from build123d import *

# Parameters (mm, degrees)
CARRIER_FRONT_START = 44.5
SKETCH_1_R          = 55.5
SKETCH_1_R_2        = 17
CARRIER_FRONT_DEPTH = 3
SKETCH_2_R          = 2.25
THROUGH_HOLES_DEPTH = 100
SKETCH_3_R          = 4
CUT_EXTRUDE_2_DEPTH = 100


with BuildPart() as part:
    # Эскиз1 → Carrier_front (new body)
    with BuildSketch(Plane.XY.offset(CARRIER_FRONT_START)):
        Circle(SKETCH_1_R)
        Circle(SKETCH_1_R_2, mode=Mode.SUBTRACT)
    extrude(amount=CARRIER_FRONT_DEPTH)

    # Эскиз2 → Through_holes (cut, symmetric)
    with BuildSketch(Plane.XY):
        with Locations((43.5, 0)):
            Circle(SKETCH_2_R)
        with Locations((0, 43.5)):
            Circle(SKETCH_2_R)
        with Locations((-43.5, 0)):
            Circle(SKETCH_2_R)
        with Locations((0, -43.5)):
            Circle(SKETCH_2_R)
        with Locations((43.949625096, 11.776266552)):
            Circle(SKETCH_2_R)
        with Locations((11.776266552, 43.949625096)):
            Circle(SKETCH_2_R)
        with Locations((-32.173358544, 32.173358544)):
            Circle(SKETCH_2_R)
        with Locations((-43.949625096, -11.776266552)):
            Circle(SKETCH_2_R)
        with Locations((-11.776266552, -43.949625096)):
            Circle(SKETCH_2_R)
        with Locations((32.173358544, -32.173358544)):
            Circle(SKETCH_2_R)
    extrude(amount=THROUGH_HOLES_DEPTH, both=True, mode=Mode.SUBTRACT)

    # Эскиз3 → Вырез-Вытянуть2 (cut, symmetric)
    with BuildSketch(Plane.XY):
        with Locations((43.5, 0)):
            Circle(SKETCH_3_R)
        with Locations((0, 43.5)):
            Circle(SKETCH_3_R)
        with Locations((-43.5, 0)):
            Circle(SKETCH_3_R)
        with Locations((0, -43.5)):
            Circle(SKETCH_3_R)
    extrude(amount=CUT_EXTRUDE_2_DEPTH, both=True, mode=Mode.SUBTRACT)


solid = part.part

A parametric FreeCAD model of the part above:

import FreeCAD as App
import Part
import Sketcher

V = App.Vector
Q = App.Units.Quantity

doc = App.newDocument("Part")
body = doc.addObject("PartDesign::Body", "Body")

# Sketch on XY plane
sketch1 = body.newObject("Sketcher::SketchObject", "Sketch")
sketch1.AttachmentSupport = (doc.getObject("XY_Plane"), [""])
sketch1.MapMode = "FlatFace"
sketch1.AttachmentOffset = App.Placement(V(0, 0, 44.5), App.Rotation())
sketch1.addGeometry(Part.Circle(V(0, 0, 0), V(0, 0, 1), 56), False)
sketch1.addGeometry(Part.Circle(V(0, 0, 0), V(0, 0, 1), 17), False)
sketch1.addConstraint(Sketcher.Constraint("Coincident", 0, 3, -1, 1))
sketch1.addConstraint(Sketcher.Constraint("Coincident", 1, 3, -1, 1))
sketch1.addConstraint(Sketcher.Constraint("Diameter", 0, Q("111 mm")))
sketch1.addConstraint(Sketcher.Constraint("Diameter", 1, Q("34 mm")))
pad1 = body.newObject("PartDesign::Pad", "Pad")
pad1.Profile = sketch1
pad1.Length = 3

# Sketch on XY plane
sketch2 = body.newObject("Sketcher::SketchObject", "Sketch001")
sketch2.AttachmentSupport = (doc.getObject("XY_Plane"), [""])
sketch2.MapMode = "FlatFace"
sketch2.addGeometry(Part.Circle(V(43.5, 0, 0), V(0, 0, 1), 2.2), False)
sketch2.addGeometry(Part.Circle(V(0, 43.5, 0), V(0, 0, 1), 2.2), False)
sketch2.addGeometry(Part.Circle(V(-43.5, 0, 0), V(0, 0, 1), 2.2), False)
sketch2.addGeometry(Part.Circle(V(0, -43.5, 0), V(0, 0, 1), 2.2), False)
sketch2.addGeometry(Part.Circle(V(43.9, 11.8, 0), V(0, 0, 1), 2.2), False)
sketch2.addGeometry(Part.Circle(V(11.8, 43.9, 0), V(0, 0, 1), 2.2), False)
sketch2.addGeometry(Part.Circle(V(-32.2, 32.2, 0), V(0, 0, 1), 2.2), False)
sketch2.addGeometry(Part.Circle(V(-43.9, -11.8, 0), V(0, 0, 1), 2.2), False)
sketch2.addGeometry(Part.Circle(V(-11.8, -43.9, 0), V(0, 0, 1), 2.2), False)
sketch2.addGeometry(Part.Circle(V(32.2, -32.2, 0), V(0, 0, 1), 2.2), False)
sketch2.addConstraint(Sketcher.Constraint("Equal", 0, 1))
sketch2.addConstraint(Sketcher.Constraint("Equal", 1, 2))
sketch2.addConstraint(Sketcher.Constraint("Equal", 2, 3))
sketch2.addConstraint(Sketcher.Constraint("Equal", 3, 4))
sketch2.addConstraint(Sketcher.Constraint("Equal", 4, 5))
sketch2.addConstraint(Sketcher.Constraint("Equal", 5, 6))
sketch2.addConstraint(Sketcher.Constraint("Equal", 6, 7))
sketch2.addConstraint(Sketcher.Constraint("Equal", 7, 8))
sketch2.addConstraint(Sketcher.Constraint("Equal", 8, 9))
sketch2.addConstraint(Sketcher.Constraint("Symmetric", 0, 3, 2, 3, -1, 1))
sketch2.addConstraint(Sketcher.Constraint("Symmetric", 1, 3, 3, 3, -1, 1))
sketch2.addConstraint(Sketcher.Constraint("Symmetric", 4, 3, 7, 3, -1, 1))
sketch2.addConstraint(Sketcher.Constraint("Symmetric", 5, 3, 8, 3, -1, 1))
sketch2.addConstraint(Sketcher.Constraint("Symmetric", 6, 3, 9, 3, -1, 1))
sketch2.addConstraint(Sketcher.Constraint("PointOnObject", 0, 3, -1))
sketch2.addConstraint(Sketcher.Constraint("PointOnObject", 1, 3, -2))
sketch2.addConstraint(Sketcher.Constraint("Diameter", 0, Q("4.5 mm")))
sketch2.addConstraint(Sketcher.Constraint("DistanceX", 2, 3, 0, 3, Q("87 mm")))
sketch2.addConstraint(Sketcher.Constraint("DistanceY", 3, 3, 1, 3, Q("87 mm")))
sketch2.addConstraint(Sketcher.Constraint("DistanceX", 6, 3, -1, 1, Q("32.173359 mm")))
sketch2.addConstraint(Sketcher.Constraint("DistanceY", -1, 1, 6, 3, Q("32.173359 mm")))
sketch2.addConstraint(Sketcher.Constraint("DistanceX", 5, 3, 4, 3, Q("32.173359 mm")))
sketch2.addConstraint(Sketcher.Constraint("DistanceY", 4, 3, 5, 3, Q("32.173359 mm")))
sketch2.addConstraint(Sketcher.Constraint("DistanceY", 4, 3, 6, 3, Q("20.397092 mm")))
sketch2.addConstraint(Sketcher.Constraint("DistanceX", 7, 3, 5, 3, Q("55.725892 mm")))
pocket1 = body.newObject("PartDesign::Pocket", "Pocket")
pocket1.Profile = sketch2
pocket1.Length = 200
pocket1.Midplane = True

# Sketch on XY plane
sketch3 = body.newObject("Sketcher::SketchObject", "Sketch002")
sketch3.AttachmentSupport = (doc.getObject("XY_Plane"), [""])
sketch3.MapMode = "FlatFace"
sketch3.addGeometry(Part.Circle(V(43.5, 0, 0), V(0, 0, 1), 4), False)
sketch3.addGeometry(Part.Circle(V(0, 43.5, 0), V(0, 0, 1), 4), False)
sketch3.addGeometry(Part.Circle(V(-43.5, 0, 0), V(0, 0, 1), 4), False)
sketch3.addGeometry(Part.Circle(V(0, -43.5, 0), V(0, 0, 1), 4), False)
sketch3.addConstraint(Sketcher.Constraint("Equal", 0, 1))
sketch3.addConstraint(Sketcher.Constraint("Equal", 1, 2))
sketch3.addConstraint(Sketcher.Constraint("Equal", 2, 3))
sketch3.addConstraint(Sketcher.Constraint("Symmetric", 0, 3, 2, 3, -1, 1))
sketch3.addConstraint(Sketcher.Constraint("Symmetric", 1, 3, 3, 3, -1, 1))
sketch3.addConstraint(Sketcher.Constraint("PointOnObject", 0, 3, -1))
sketch3.addConstraint(Sketcher.Constraint("PointOnObject", 1, 3, -2))
sketch3.addConstraint(Sketcher.Constraint("Diameter", 0, Q("8 mm")))
sketch3.addConstraint(Sketcher.Constraint("DistanceX", 2, 3, 0, 3, Q("87 mm")))
sketch3.addConstraint(Sketcher.Constraint("DistanceY", 3, 3, 1, 3, Q("87 mm")))
pocket2 = body.newObject("PartDesign::Pocket", "Pocket001")
pocket2.Profile = sketch3
pocket2.Length = 200
pocket2.Midplane = True

doc.recompute()
